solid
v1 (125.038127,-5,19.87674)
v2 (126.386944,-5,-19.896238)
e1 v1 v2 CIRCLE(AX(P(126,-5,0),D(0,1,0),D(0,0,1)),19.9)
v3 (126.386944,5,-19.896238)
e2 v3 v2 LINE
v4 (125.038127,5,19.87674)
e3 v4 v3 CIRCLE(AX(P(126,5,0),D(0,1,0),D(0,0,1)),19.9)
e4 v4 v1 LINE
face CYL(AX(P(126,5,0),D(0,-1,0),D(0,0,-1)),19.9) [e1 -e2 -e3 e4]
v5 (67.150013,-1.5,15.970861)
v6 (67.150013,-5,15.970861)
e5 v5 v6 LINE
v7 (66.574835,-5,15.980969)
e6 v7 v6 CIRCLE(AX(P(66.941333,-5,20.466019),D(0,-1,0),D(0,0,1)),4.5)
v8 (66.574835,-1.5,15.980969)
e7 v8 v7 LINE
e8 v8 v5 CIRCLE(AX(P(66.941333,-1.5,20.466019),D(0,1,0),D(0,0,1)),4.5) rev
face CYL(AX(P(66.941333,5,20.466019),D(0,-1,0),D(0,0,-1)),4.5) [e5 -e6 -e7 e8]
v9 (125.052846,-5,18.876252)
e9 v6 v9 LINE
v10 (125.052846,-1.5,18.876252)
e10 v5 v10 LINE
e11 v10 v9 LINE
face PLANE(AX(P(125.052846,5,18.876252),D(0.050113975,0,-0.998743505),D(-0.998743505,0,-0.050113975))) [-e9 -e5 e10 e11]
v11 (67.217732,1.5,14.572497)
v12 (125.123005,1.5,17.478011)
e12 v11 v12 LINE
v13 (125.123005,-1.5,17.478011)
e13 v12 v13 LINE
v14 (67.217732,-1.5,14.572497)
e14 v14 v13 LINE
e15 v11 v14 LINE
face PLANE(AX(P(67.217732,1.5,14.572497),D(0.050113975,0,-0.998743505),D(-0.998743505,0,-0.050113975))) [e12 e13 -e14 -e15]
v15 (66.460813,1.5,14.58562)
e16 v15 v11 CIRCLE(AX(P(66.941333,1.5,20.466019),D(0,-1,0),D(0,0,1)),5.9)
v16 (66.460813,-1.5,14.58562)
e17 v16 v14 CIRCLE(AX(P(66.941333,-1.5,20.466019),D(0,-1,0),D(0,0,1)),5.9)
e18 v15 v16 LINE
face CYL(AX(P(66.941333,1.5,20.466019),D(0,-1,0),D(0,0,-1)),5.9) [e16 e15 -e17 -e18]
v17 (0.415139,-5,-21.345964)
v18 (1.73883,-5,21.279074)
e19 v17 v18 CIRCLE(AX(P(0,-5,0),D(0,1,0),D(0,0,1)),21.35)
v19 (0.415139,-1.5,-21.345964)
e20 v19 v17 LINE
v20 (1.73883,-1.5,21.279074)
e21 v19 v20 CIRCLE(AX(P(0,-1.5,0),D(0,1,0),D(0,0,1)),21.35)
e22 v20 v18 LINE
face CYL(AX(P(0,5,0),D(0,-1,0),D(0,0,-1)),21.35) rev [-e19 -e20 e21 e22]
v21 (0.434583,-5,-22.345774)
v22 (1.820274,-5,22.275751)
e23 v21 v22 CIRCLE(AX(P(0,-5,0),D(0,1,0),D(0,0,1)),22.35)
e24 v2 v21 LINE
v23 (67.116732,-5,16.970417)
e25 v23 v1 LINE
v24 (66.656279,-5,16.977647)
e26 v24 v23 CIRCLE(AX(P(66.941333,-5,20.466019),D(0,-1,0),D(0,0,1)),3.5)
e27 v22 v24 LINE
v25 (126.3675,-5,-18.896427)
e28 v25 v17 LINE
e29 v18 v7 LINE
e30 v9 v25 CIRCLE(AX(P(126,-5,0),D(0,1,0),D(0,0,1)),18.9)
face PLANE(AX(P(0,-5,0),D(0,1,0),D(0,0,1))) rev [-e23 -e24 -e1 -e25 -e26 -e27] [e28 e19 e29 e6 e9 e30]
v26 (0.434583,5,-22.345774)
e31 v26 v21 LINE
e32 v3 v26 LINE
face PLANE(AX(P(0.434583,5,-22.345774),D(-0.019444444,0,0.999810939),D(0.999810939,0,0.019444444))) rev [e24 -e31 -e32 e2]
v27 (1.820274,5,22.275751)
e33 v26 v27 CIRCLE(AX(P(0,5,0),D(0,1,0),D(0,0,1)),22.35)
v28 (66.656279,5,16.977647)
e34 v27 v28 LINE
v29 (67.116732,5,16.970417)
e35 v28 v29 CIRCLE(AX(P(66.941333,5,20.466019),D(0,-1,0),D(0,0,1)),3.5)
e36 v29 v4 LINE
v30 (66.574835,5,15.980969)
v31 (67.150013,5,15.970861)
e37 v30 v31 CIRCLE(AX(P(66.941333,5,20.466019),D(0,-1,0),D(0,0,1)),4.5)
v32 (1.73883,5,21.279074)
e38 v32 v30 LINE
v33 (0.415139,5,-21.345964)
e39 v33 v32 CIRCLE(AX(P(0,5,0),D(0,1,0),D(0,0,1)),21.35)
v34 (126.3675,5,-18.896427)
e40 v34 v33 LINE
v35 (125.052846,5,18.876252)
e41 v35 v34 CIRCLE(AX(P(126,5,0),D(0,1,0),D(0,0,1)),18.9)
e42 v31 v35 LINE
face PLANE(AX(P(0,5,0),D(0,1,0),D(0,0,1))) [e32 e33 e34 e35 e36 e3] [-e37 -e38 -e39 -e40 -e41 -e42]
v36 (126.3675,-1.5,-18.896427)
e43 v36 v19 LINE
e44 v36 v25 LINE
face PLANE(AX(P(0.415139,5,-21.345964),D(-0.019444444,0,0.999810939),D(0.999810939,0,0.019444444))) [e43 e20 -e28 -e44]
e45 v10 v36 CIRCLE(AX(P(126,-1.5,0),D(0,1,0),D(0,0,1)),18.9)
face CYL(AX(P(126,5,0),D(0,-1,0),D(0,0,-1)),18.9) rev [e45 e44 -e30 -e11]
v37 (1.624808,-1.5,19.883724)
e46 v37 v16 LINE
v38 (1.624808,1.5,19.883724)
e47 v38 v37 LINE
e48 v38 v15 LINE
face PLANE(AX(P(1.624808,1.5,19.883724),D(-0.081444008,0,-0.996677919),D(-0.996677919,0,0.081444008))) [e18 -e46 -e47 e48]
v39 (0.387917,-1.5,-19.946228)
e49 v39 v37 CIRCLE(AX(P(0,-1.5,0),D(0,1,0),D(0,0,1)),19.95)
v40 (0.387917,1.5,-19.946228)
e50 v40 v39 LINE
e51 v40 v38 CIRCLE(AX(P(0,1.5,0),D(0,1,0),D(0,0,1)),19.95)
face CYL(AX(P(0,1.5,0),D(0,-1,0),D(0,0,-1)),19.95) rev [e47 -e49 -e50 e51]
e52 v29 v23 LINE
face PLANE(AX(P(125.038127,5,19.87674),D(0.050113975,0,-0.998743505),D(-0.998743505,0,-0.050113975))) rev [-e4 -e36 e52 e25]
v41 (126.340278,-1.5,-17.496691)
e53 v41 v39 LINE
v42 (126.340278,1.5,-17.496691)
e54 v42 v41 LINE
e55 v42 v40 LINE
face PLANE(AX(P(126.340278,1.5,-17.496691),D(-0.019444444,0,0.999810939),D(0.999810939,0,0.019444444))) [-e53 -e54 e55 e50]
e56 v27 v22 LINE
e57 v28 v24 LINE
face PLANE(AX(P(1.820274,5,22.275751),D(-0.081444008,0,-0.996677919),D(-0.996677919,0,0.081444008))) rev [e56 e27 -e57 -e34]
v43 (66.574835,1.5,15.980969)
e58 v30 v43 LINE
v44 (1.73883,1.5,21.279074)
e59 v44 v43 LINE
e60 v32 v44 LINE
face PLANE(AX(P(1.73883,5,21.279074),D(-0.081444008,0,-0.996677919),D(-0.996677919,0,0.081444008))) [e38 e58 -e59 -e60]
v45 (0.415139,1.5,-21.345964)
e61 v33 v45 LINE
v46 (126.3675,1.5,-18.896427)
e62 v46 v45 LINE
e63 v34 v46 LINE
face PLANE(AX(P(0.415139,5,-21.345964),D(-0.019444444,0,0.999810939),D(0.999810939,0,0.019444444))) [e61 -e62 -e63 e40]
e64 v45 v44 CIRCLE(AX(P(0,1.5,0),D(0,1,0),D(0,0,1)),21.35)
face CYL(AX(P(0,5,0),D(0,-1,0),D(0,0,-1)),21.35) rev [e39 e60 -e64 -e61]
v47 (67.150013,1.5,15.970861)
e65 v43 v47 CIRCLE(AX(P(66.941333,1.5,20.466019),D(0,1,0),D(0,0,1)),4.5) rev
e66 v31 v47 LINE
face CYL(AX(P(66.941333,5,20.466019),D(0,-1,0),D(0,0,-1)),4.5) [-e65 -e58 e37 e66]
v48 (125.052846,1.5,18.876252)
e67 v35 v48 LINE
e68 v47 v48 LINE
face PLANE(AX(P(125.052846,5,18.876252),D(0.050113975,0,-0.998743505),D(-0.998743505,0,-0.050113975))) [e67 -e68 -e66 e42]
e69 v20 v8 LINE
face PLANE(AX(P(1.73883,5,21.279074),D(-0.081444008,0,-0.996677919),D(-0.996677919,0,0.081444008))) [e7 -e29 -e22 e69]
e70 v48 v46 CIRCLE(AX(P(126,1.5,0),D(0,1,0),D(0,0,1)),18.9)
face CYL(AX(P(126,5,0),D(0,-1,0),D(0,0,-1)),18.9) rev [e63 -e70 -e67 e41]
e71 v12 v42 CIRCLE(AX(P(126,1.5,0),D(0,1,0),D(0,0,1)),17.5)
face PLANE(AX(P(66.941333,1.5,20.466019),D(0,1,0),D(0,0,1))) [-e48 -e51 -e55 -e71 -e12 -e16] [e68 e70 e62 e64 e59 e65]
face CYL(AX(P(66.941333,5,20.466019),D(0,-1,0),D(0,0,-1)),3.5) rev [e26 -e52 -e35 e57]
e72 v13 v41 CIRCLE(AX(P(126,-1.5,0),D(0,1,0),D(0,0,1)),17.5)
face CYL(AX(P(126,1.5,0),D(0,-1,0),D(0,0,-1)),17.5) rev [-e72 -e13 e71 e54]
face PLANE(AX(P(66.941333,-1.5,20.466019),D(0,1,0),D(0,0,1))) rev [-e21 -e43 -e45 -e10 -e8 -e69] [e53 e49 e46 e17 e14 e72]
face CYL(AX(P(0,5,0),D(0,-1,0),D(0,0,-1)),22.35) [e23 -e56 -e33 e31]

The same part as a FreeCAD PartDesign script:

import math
import FreeCAD as App
import Part
import Sketcher
Q = App.Units.Quantity

doc = App.newDocument("Part")
body = doc.addObject("PartDesign::Body", "Body")

sketch1 = body.newObject("Sketcher::SketchObject", "Sketch")
sketch1.AttachmentSupport = (doc.getObject("XZ_Plane"), [""])
sketch1.MapMode = "FlatFace"
sketch1.addGeometry(Part.LineSegment(App.Vector(126.386944, -19.896238, 0), App.Vector(0.434583, -22.345774, 0)), False)
sketch1.addGeometry(Part.ArcOfCircle(Part.Circle(App.Vector(0, 0, 0), App.Vector(0, 0, 1), 22.35), math.radians(85.328428), math.radians(271.114155)), False)
sketch1.addGeometry(Part.LineSegment(App.Vector(1.820274, 22.275751, 0), App.Vector(66.656279, 16.977647, 0)), False)
sketch1.addGeometry(Part.ArcOfCircle(Part.Circle(App.Vector(66.941333, 20.466019, 0), App.Vector(0, 0, 1), 3.5), math.radians(-94.671572), math.radians(-87.127477)), False)
sketch1.addGeometry(Part.LineSegment(App.Vector(67.116732, 16.970417, 0), App.Vector(125.038127, 19.87674, 0)), False)
sketch1.addGeometry(Part.ArcOfCircle(Part.Circle(App.Vector(126, 0, 0), App.Vector(0, 0, 1), 19.9), math.radians(-88.885845), math.radians(92.770489)), False)
sketch1.addGeometry(Part.LineSegment(App.Vector(0.415139, -21.345964, 0), App.Vector(126.3675, -18.896427, 0)), False)
sketch1.addGeometry(Part.ArcOfCircle(Part.Circle(App.Vector(126, 0, 0), App.Vector(0, 0, 1), 18.9), math.radians(-88.885845), math.radians(92.872522)), False)
sketch1.addGeometry(Part.LineSegment(App.Vector(125.052846, 18.876252, 0), App.Vector(67.150013, 15.970861, 0)), False)
sketch1.addGeometry(Part.ArcOfCircle(Part.Circle(App.Vector(66.941333, 20.466019, 0), App.Vector(0, 0, 1), 4.5), math.radians(-94.671572), math.radians(-87.342045)), False)
sketch1.addGeometry(Part.LineSegment(App.Vector(66.574835, 15.980969, 0), App.Vector(1.73883, 21.279074, 0)), False)
sketch1.addGeometry(Part.ArcOfCircle(Part.Circle(App.Vector(0, 0, 0), App.Vector(0, 0, 1), 21.35), math.radians(85.328428), math.radians(271.114155)), False)
sketch1.addConstraint(Sketcher.Constraint("Coincident", 0, 2, 1, 2))
sketch1.addConstraint(Sketcher.Constraint("Coincident", 1, 1, 2, 1))
sketch1.addConstraint(Sketcher.Constraint("Coincident", 2, 2, 3, 1))
sketch1.addConstraint(Sketcher.Constraint("Coincident", 3, 2, 4, 1))
sketch1.addConstraint(Sketcher.Constraint("Coincident", 4, 2, 5, 2))
sketch1.addConstraint(Sketcher.Constraint("Coincident", 5, 1, 0, 1))
sketch1.addConstraint(Sketcher.Constraint("Coincident", 6, 2, 7, 1))
sketch1.addConstraint(Sketcher.Constraint("Coincident", 7, 2, 8, 1))
sketch1.addConstraint(Sketcher.Constraint("Coincident", 8, 2, 9, 2))
sketch1.addConstraint(Sketcher.Constraint("Coincident", 9, 1, 10, 1))
sketch1.addConstraint(Sketcher.Constraint("Coincident", 10, 2, 11, 1))
sketch1.addConstraint(Sketcher.Constraint("Coincident", 11, 2, 6, 1))
sketch1.addConstraint(Sketcher.Constraint("Coincident", 1, 3, -1, 1))
sketch1.addConstraint(Sketcher.Constraint("Coincident", 11, 3, -1, 1))
sketch1.addConstraint(Sketcher.Constraint("Coincident", 7, 3, 5, 3))
sketch1.addConstraint(Sketcher.Constraint("Coincident", 9, 3, 3, 3))
sketch1.addConstraint(Sketcher.Constraint("PointOnObject", 5, 3, -1))
sketch1.addConstraint(Sketcher.Constraint("Radius", 3, Q("3.5 mm")))
sketch1.addConstraint(Sketcher.Constraint("Radius", 5, Q("19.9 mm")))
sketch1.addConstraint(Sketcher.Constraint("Radius", 7, Q("18.9 mm")))
sketch1.addConstraint(Sketcher.Constraint("Radius", 9, Q("4.5 mm")))
sketch1.addConstraint(Sketcher.Constraint("Radius", 1, Q("22.35 mm")))
sketch1.addConstraint(Sketcher.Constraint("Radius", 11, Q("21.35 mm")))
sketch1.addConstraint(Sketcher.Constraint("DistanceX", -1, 1, 5, 3, Q("126 mm")))
sketch1.addConstraint(Sketcher.Constraint("DistanceX", -1, 1, 6, 2, Q("126.3675 mm")))
sketch1.addConstraint(Sketcher.Constraint("DistanceX", 3, 3, 3, 2, Q("0.175399 mm")))
sketch1.addConstraint(Sketcher.Constraint("DistanceX", 7, 2, 5, 1, Q("1.334099 mm")))
sketch1.addConstraint(Sketcher.Constraint("DistanceX", 9, 1, 3, 3, Q("0.366498 mm")))
sketch1.addConstraint(Sketcher.Constraint("Distance", 0, Q("125.976178 mm")))
sketch1.addConstraint(Sketcher.Constraint("Distance", 6, Q("125.976178 mm")))
sketch1.addConstraint(Sketcher.Constraint("Distance", 8, Q("57.975679 mm")))
sketch1.addConstraint(Sketcher.Constraint("DistanceY", -1, 1, 3, 3, Q("20.466019 mm")))
sketch1.addConstraint(Sketcher.Constraint("DistanceY", -1, 1, 1, 1, Q("22.275751 mm")))
sketch1.addConstraint(Sketcher.Constraint("DistanceX", -1, 1, 2, 2, Q("66.656279 mm")))
sketch1.addConstraint(Sketcher.Constraint("DistanceX", -1, 1, 3, 2, Q("67.116732 mm")))
sketch1.addConstraint(Sketcher.Constraint("DistanceY", -1, 1, 4, 2, Q("19.87674 mm")))
sketch1.addConstraint(Sketcher.Constraint("DistanceY", -1, 1, 8, 2, Q("15.970861 mm")))
sketch1.addConstraint(Sketcher.Constraint("DistanceX", -1, 1, 10, 2, Q("1.73883 mm")))
pad1 = body.newObject("PartDesign::Pad", "Pad")
pad1.Profile = sketch1
pad1.Length = 10
pad1.Midplane = True

sketch2 = body.newObject("Sketcher::SketchObject", "Sketch001")
sketch2.AttachmentSupport = (doc.getObject("XZ_Plane"), [""])
sketch2.MapMode = "FlatFace"
sketch2.addGeometry(Part.LineSegment(App.Vector(67.1, 16.2, 0), App.Vector(125, 19.1, 0)), False)
sketch2.addGeometry(Part.ArcOfCircle(Part.Circle(App.Vector(126, 0, 0), App.Vector(0, 0, 1), 19.1), math.radians(-89), math.radians(93)), False)
sketch2.addGeometry(Part.LineSegment(App.Vector(126.4, -19.1, 0), App.Vector(0.4, -21.5, 0)), False)
sketch2.addGeometry(Part.ArcOfCircle(Part.Circle(App.Vector(0, 0, 0), App.Vector(0, 0, 1), 21.6), math.radians(85), math.radians(271)), False)
sketch2.addGeometry(Part.LineSegment(App.Vector(1.8, 21.5, 0), App.Vector(66.6, 16.2, 0)), False)
sketch2.addGeometry(Part.ArcOfCircle(Part.Circle(App.Vector(66.9, 20.5, 0), App.Vector(0, 0, 1), 4.3), math.radians(-94.67), math.radians(-87.35)), False)
sketch2.addGeometry(Part.LineSegment(App.Vector(125.1, 17.5, 0), App.Vector(67.2, 14.6, 0)), False)
sketch2.addGeometry(Part.ArcOfCircle(Part.Circle(App.Vector(66.9, 20.5, 0), App.Vector(0, 0, 1), 5.9), math.radians(-94.67), math.radians(-87.31)), False)
sketch2.addGeometry(Part.LineSegment(App.Vector(66.5, 14.6, 0), App.Vector(1.6, 19.9, 0)), False)
sketch2.addGeometry(Part.ArcOfCircle(Part.Circle(App.Vector(0, 0, 0), App.Vector(0, 0, 1), 19.9), math.radians(85), math.radians(271)), False)
sketch2.addGeometry(Part.LineSegment(App.Vector(0.4, -19.9, 0), App.Vector(126.3, -17.5, 0)), False)
sketch2.addGeometry(Part.ArcOfCircle(Part.Circle(App.Vector(126, 0, 0), App.Vector(0, 0, 1), 17.5), math.radians(-89), math.radians(93)), False)
sketch2.addConstraint(Sketcher.Constraint("Tangent", 0, 2, 1, 2))
sketch2.addConstraint(Sketcher.Constraint("Tangent", 1, 1, 2, 1))
sketch2.addConstraint(Sketcher.Constraint("Tangent", 2, 2, 3, 2))
sketch2.addConstraint(Sketcher.Constraint("Tangent", 3, 1, 4, 1))
sketch2.addConstraint(Sketcher.Constraint("Tangent", 4, 2, 5, 1))
sketch2.addConstraint(Sketcher.Constraint("Coincident", 5, 2, 0, 1))
sketch2.addConstraint(Sketcher.Constraint("Coincident", 6, 2, 7, 2))
sketch2.addConstraint(Sketcher.Constraint("Tangent", 7, 1, 8, 1))
sketch2.addConstraint(Sketcher.Constraint("Tangent", 8, 2, 9, 1))
sketch2.addConstraint(Sketcher.Constraint("Tangent", 9, 2, 10, 1))
sketch2.addConstraint(Sketcher.Constraint("Tangent", 10, 2, 11, 1))
sketch2.addConstraint(Sketcher.Constraint("Tangent", 11, 2, 6, 1))
sketch2.addConstraint(Sketcher.Constraint("Coincident", 3, 3, -1, 1))
sketch2.addConstraint(Sketcher.Constraint("Coincident", 9, 3, -1, 1))
sketch2.addConstraint(Sketcher.Constraint("Coincident", 7, 3, 5, 3))
sketch2.addConstraint(Sketcher.Constraint("Coincident", 11, 3, 1, 3))
sketch2.addConstraint(Sketcher.Constraint("PointOnObject", 1, 3, -1))
sketch2.addConstraint(Sketcher.Constraint("Parallel", 0, 6))
sketch2.addConstraint(Sketcher.Constraint("Parallel", 4, 8))
sketch2.addConstraint(Sketcher.Constraint("Parallel", 2, 10))
sketch2.addConstraint(Sketcher.Constraint("Radius", 1, Q("19.1 mm")))
sketch2.addConstraint(Sketcher.Constraint("Radius", 5, Q("4.3 mm")))
sketch2.addConstraint(Sketcher.Constraint("Radius", 7, Q("5.9 mm")))
sketch2.addConstraint(Sketcher.Constraint("Radius", 3, Q("21.55 mm")))
sketch2.addConstraint(Sketcher.Constraint("DistanceX", -1, 1, 1, 3, Q("126 mm")))
sketch2.addConstraint(Sketcher.Constraint("DistanceY", -1, 1, 0, 2, Q("19.076001 mm")))
sketch2.addConstraint(Sketcher.Constraint("Distance", 0, Q("57.9753 mm")))
sketch2.addConstraint(Sketcher.Constraint("DistanceX", 4, 2, 0, 2, Q("58.451699 mm")))
pad2 = body.newObject("PartDesign::Pad", "Pad001")
pad2.Profile = sketch2
pad2.Length = 3
pad2.Midplane = True

doc.recompute()
